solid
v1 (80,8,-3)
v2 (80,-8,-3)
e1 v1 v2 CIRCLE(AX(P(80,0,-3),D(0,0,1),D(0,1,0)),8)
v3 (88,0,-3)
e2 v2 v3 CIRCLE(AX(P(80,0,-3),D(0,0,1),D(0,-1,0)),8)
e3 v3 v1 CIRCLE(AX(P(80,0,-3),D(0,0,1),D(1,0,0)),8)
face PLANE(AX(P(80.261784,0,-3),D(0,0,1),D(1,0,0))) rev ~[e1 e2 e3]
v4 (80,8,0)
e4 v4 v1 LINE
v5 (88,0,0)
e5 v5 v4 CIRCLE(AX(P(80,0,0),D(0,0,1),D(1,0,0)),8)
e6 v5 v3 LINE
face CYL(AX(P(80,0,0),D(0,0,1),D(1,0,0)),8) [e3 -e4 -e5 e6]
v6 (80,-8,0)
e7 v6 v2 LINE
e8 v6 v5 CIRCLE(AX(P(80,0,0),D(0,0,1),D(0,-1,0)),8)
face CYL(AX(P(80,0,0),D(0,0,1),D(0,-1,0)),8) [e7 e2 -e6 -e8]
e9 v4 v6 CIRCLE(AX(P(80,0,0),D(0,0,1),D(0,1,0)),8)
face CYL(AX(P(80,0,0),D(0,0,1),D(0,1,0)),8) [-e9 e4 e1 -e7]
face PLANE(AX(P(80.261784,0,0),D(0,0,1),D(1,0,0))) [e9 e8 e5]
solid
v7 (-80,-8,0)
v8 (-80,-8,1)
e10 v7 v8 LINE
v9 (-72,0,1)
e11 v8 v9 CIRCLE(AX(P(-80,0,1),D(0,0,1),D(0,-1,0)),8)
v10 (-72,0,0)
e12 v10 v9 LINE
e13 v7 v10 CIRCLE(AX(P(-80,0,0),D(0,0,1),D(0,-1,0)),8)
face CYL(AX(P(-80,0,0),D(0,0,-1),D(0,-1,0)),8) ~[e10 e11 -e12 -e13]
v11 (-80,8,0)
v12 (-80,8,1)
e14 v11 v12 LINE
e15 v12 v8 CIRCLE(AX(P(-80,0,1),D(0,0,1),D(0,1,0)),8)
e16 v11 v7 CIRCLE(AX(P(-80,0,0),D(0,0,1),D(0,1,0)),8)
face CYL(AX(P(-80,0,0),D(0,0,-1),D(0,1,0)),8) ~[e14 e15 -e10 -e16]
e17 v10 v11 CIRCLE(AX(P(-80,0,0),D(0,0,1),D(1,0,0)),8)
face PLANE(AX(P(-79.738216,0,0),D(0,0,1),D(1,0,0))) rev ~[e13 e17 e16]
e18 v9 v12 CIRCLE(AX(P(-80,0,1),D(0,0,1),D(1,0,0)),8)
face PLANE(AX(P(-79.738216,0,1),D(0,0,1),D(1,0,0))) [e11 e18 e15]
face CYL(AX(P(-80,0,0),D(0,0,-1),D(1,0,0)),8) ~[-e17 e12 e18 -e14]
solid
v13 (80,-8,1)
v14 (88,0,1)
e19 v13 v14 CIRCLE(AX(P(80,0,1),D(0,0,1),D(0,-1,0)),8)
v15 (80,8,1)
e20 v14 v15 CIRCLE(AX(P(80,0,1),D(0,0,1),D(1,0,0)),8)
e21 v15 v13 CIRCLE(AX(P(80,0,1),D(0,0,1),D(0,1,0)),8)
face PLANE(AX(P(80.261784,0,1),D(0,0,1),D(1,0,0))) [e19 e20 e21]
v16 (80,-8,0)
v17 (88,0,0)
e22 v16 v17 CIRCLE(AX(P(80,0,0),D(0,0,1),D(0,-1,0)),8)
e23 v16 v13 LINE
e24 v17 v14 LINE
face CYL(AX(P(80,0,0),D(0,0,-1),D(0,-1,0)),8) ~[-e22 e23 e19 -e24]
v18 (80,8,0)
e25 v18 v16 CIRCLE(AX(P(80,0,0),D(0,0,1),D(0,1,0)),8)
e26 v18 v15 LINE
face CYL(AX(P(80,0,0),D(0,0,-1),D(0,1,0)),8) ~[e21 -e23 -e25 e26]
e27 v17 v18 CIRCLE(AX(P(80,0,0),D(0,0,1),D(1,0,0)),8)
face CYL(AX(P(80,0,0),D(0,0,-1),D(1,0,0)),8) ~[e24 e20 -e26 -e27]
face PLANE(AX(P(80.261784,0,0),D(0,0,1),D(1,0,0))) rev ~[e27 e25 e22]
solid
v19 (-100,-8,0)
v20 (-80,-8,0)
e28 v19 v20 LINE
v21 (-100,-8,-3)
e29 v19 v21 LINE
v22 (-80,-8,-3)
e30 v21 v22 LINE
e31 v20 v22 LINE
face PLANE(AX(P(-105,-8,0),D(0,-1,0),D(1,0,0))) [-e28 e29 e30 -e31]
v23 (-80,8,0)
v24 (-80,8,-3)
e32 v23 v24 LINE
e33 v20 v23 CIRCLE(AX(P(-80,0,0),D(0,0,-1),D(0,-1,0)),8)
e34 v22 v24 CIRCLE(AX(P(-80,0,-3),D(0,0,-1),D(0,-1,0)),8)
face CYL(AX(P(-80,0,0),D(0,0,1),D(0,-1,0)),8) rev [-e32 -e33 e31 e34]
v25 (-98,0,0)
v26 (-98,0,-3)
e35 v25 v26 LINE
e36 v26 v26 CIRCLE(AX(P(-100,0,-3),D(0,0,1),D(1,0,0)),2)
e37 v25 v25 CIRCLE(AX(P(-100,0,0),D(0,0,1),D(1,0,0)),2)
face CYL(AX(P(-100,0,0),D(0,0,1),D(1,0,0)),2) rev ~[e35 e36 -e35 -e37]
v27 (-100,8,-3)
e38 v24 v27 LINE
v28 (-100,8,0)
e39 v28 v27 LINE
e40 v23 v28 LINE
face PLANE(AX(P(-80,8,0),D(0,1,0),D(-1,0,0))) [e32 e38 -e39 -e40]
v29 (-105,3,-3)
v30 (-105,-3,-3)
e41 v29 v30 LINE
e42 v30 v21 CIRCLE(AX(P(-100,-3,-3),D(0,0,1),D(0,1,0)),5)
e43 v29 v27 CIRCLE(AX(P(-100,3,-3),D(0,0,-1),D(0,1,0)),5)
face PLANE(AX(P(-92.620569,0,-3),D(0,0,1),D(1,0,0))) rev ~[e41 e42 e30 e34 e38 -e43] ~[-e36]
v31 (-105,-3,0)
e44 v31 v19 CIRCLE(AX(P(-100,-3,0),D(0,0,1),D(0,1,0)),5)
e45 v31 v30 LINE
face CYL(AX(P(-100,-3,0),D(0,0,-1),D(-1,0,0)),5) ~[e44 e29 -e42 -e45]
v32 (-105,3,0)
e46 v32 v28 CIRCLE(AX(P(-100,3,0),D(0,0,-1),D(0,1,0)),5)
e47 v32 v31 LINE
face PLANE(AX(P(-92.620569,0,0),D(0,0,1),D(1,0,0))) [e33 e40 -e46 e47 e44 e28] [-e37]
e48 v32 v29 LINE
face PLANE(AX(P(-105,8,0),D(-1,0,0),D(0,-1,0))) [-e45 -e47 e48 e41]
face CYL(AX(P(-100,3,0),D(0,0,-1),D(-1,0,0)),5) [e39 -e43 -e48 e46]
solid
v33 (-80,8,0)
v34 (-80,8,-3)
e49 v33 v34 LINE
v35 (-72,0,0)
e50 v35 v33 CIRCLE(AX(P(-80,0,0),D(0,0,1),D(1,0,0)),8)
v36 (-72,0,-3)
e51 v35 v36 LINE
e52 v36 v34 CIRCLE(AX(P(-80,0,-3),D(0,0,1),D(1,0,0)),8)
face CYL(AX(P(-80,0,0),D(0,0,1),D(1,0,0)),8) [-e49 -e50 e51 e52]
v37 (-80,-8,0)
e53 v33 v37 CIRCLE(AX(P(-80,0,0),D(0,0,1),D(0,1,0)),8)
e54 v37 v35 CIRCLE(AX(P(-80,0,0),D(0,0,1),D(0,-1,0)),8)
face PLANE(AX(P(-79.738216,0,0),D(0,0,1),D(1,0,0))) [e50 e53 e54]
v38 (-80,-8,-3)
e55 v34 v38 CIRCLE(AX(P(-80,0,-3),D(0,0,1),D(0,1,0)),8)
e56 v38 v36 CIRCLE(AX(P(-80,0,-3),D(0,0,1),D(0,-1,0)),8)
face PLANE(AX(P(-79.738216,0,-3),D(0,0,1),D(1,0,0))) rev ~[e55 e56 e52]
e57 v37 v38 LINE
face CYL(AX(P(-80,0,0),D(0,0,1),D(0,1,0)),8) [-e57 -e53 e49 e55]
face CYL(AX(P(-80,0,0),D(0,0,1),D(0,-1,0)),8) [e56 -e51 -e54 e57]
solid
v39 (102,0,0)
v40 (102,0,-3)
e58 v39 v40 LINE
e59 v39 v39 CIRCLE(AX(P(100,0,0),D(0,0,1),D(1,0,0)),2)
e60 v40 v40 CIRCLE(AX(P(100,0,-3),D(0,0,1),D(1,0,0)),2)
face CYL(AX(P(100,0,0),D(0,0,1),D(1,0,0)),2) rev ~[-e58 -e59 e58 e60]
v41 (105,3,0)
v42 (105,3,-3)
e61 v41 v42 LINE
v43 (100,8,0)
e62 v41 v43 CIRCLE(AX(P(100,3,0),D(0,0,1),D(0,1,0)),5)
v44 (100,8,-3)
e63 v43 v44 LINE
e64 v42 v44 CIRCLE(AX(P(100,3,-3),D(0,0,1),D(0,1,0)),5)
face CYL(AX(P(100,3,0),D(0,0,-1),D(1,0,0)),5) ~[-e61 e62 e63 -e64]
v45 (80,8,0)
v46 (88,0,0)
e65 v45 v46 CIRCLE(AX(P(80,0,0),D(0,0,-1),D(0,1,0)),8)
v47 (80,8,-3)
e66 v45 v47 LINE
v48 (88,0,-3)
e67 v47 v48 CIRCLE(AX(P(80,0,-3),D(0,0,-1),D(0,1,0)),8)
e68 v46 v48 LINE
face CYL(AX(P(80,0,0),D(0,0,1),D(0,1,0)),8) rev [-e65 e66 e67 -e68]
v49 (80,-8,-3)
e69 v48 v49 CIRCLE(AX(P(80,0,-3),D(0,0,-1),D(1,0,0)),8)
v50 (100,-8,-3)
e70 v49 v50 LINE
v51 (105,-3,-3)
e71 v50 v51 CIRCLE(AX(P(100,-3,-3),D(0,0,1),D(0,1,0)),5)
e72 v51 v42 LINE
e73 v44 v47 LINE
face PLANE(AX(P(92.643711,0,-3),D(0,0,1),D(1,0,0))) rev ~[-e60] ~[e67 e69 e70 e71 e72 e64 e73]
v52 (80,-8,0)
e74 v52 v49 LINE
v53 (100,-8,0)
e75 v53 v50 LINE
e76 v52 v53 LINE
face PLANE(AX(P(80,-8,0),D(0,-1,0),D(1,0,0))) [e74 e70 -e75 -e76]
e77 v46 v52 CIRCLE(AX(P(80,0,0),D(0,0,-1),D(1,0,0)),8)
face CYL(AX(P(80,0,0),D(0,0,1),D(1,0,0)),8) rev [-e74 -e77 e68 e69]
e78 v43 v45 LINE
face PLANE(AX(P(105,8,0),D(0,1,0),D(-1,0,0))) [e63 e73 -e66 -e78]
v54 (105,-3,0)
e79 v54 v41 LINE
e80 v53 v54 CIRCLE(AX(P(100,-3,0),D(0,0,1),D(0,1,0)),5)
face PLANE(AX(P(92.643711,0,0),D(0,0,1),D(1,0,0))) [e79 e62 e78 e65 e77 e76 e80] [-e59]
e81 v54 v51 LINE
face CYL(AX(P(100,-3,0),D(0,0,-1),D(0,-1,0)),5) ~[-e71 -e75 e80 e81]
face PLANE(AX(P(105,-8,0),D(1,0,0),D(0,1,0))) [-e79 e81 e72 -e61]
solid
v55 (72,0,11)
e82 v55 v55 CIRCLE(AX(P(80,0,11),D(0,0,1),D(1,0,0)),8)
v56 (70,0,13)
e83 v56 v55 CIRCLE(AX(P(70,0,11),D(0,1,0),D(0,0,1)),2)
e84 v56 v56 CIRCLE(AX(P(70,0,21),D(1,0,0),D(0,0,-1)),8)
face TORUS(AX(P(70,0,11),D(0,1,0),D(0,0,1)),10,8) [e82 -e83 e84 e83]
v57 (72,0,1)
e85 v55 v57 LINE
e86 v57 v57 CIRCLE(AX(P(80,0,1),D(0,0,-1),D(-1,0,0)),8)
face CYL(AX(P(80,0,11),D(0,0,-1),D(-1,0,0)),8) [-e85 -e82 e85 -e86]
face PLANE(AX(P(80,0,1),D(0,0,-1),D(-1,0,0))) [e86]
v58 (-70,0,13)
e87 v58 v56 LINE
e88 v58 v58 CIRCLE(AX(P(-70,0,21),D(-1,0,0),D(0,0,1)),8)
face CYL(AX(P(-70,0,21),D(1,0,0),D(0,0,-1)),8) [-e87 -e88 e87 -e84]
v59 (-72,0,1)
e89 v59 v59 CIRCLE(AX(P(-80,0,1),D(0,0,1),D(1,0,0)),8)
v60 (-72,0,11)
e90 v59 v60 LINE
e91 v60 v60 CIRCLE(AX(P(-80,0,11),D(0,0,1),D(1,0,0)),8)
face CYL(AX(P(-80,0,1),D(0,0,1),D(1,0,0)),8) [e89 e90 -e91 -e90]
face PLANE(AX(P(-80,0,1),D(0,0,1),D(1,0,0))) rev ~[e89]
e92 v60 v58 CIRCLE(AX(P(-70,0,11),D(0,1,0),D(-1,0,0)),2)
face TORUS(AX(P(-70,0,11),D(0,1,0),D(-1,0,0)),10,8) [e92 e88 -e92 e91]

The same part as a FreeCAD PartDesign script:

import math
import FreeCAD as App
import Part
import Sketcher
from FreeCAD import Vector
Q = App.Units.Quantity


def edges_at(feature, points):
    """Names of the edges that pass closest to the given points."""
    edges = feature.Shape.Edges
    near = lambda p: min(range(len(edges)), key=lambda i: edges[i].distToShape(Part.Vertex(*p))[0])
    return sorted({f"Edge{near(p) + 1}" for p in points})

doc = App.newDocument("Part")
body = doc.addObject("PartDesign::Body", "Body")

# Sketch on XY plane
sketch1 = body.newObject("Sketcher::SketchObject", "Sketch")
sketch1.AttachmentSupport = (doc.getObject("XY_Plane"), [""])
sketch1.MapMode = "FlatFace"
sketch1.addGeometry(Part.ArcOfCircle(Part.Circle(Vector(-80, 0, 0), Vector(0, 0, 1), 8), math.radians(90), math.radians(270)), False)
sketch1.addGeometry(Part.ArcOfCircle(Part.Circle(Vector(-80, 0, 0), Vector(0, 0, 1), 8), math.radians(-90), math.radians(0)), False)
sketch1.addGeometry(Part.ArcOfCircle(Part.Circle(Vector(-80, 0, 0), Vector(0, 0, 1), 8), math.radians(0), math.radians(90)), False)
sketch1.addConstraint(Sketcher.Constraint("Tangent", 0, 2, 1, 1))
sketch1.addConstraint(Sketcher.Constraint("Tangent", 1, 2, 2, 1))
sketch1.addConstraint(Sketcher.Constraint("Tangent", 2, 2, 0, 1))
sketch1.addConstraint(Sketcher.Constraint("Symmetric", 0, 2, 2, 2, -1))
sketch1.addConstraint(Sketcher.Constraint("PointOnObject", 1, 2, -1))
sketch1.addConstraint(Sketcher.Constraint("Vertical", 2, 3, 0, 2))
sketch1.addConstraint(Sketcher.Constraint("Radius", 0, Q("8 mm")))
sketch1.addConstraint(Sketcher.Constraint("DistanceX", 0, 3, -1, 1, Q("80 mm")))
pad1 = body.newObject("PartDesign::Pad", "Pad")
pad1.Profile = sketch1
pad1.Length = 1
body2 = doc.addObject("PartDesign::Body", "Body001")

# Sketch on XY plane
sketch2 = body2.newObject("Sketcher::SketchObject", "Sketch001")
sketch2.AttachmentSupport = (doc.getObject("XY_Plane001"), [""])
sketch2.MapMode = "FlatFace"
sketch2.addGeometry(Part.ArcOfCircle(Part.Circle(Vector(80, 0, 0), Vector(0, 0, 1), 8), math.radians(90), math.radians(270)), False)
sketch2.addGeometry(Part.ArcOfCircle(Part.Circle(Vector(80, 0, 0), Vector(0, 0, 1), 8), math.radians(-90), math.radians(0)), False)
sketch2.addGeometry(Part.ArcOfCircle(Part.Circle(Vector(80, 0, 0), Vector(0, 0, 1), 8), math.radians(0), math.radians(90)), False)
sketch2.addConstraint(Sketcher.Constraint("Tangent", 0, 2, 1, 1))
sketch2.addConstraint(Sketcher.Constraint("Tangent", 1, 2, 2, 1))
sketch2.addConstraint(Sketcher.Constraint("Tangent", 2, 2, 0, 1))
sketch2.addConstraint(Sketcher.Constraint("Symmetric", 0, 2, 2, 2, -1))
sketch2.addConstraint(Sketcher.Constraint("PointOnObject", 1, 2, -1))
sketch2.addConstraint(Sketcher.Constraint("Vertical", 2, 3, 0, 2))
sketch2.addConstraint(Sketcher.Constraint("Radius", 0, Q("8 mm")))
sketch2.addConstraint(Sketcher.Constraint("DistanceX", -1, 1, 0, 3, Q("80 mm")))
pad2 = body2.newObject("PartDesign::Pad", "Pad001")
pad2.Profile = sketch2
pad2.Length = 1
body3 = doc.addObject("PartDesign::Body", "Body002")

# Sketch on XY plane
sketch3 = body3.newObject("Sketcher::SketchObject", "Sketch002")
sketch3.AttachmentSupport = (doc.getObject("XY_Plane002"), [""])
sketch3.MapMode = "FlatFace"
sketch3.addGeometry(Part.LineSegment(Vector(-105, 8, 0), Vector(-105, -8, 0)), False)
sketch3.addGeometry(Part.LineSegment(Vector(-105, -8, 0), Vector(-80, -8, 0)), False)
sketch3.addGeometry(Part.ArcOfCircle(Part.Circle(Vector(-80, 0, 0), Vector(0, 0, 1), 8), math.radians(90), math.radians(270)), False)
sketch3.addGeometry(Part.LineSegment(Vector(-80, 8, 0), Vector(-105, 8, 0)), False)
sketch3.addGeometry(Part.Circle(Vector(-100, 0, 0), Vector(0, 0, 1), 2), False)
sketch3.addConstraint(Sketcher.Constraint("Coincident", 0, 2, 1, 1))
sketch3.addConstraint(Sketcher.Constraint("Tangent", 1, 2, 2, 2))
sketch3.addConstraint(Sketcher.Constraint("Tangent", 2, 1, 3, 1))
sketch3.addConstraint(Sketcher.Constraint("Coincident", 3, 2, 0, 1))
sketch3.addConstraint(Sketcher.Constraint("Vertical", 0))
sketch3.addConstraint(Sketcher.Constraint("Horizontal", 1))
sketch3.addConstraint(Sketcher.Constraint("Horizontal", 3))
sketch3.addConstraint(Sketcher.Constraint("PointOnObject", 2, 3, -1))
sketch3.addConstraint(Sketcher.Constraint("PointOnObject", 4, 3, -1))
sketch3.addConstraint(Sketcher.Constraint("Diameter", 4, Q("4 mm")))
sketch3.addConstraint(Sketcher.Constraint("Radius", 2, Q("8 mm")))
sketch3.addConstraint(Sketcher.Constraint("DistanceX", 1, 1, 1, 2, Q("25 mm")))
sketch3.addConstraint(Sketcher.Constraint("DistanceX", 2, 3, -1, 1, Q("80 mm")))
sketch3.addConstraint(Sketcher.Constraint("DistanceX", 4, 3, -1, 1, Q("100 mm")))
pad3 = body3.newObject("PartDesign::Pad", "Pad002")
pad3.Profile = sketch3
pad3.Length = 3
pad3.Reversed = True
doc.recompute()

fillet = body3.newObject("PartDesign::Fillet", "Fillet")
fillet.Base = (pad3, edges_at(pad3, [(-105, -8, -1.5), (-105, 8, -1.5)]))
fillet.Radius = 5
body4 = doc.addObject("PartDesign::Body", "Body003")

# Sketch on XY plane
sketch4 = body4.newObject("Sketcher::SketchObject", "Sketch003")
sketch4.AttachmentSupport = (doc.getObject("XY_Plane003"), [""])
sketch4.MapMode = "FlatFace"
sketch4.addGeometry(Part.LineSegment(Vector(80, -8, 0), Vector(105, -8, 0)), False)
sketch4.addGeometry(Part.LineSegment(Vector(105, -8, 0), Vector(105, 8, 0)), False)
sketch4.addGeometry(Part.LineSegment(Vector(105, 8, 0), Vector(80, 8, 0)), False)
sketch4.addGeometry(Part.ArcOfCircle(Part.Circle(Vector(80, 0, 0), Vector(0, 0, 1), 8), math.radians(0), math.radians(90)), False)
sketch4.addGeometry(Part.ArcOfCircle(Part.Circle(Vector(80, 0, 0), Vector(0, 0, 1), 8), math.radians(-90), math.radians(0)), False)
sketch4.addGeometry(Part.Circle(Vector(100, 0, 0), Vector(0, 0, 1), 2), False)
sketch4.addConstraint(Sketcher.Constraint("Coincident", 0, 2, 1, 1))
sketch4.addConstraint(Sketcher.Constraint("Coincident", 1, 2, 2, 1))
sketch4.addConstraint(Sketcher.Constraint("Tangent", 2, 2, 3, 2))
sketch4.addConstraint(Sketcher.Constraint("Tangent", 3, 1, 4, 2))
sketch4.addConstraint(Sketcher.Constraint("Tangent", 4, 1, 0, 1))
sketch4.addConstraint(Sketcher.Constraint("Horizontal", 0))
sketch4.addConstraint(Sketcher.Constraint("Vertical", 1))
sketch4.addConstraint(Sketcher.Constraint("Horizontal", 2))
sketch4.addConstraint(Sketcher.Constraint("Equal", 3, 4))
sketch4.addConstraint(Sketcher.Constraint("PointOnObject", 3, 3, -1))
sketch4.addConstraint(Sketcher.Constraint("PointOnObject", 5, 3, -1))
sketch4.addConstraint(Sketcher.Constraint("PointOnObject", 3, 1, -1))
sketch4.addConstraint(Sketcher.Constraint("Diameter", 5, Q("4 mm")))
sketch4.addConstraint(Sketcher.Constraint("Radius", 3, Q("8 mm")))
sketch4.addConstraint(Sketcher.Constraint("DistanceX", 0, 1, 0, 2, Q("25 mm")))
sketch4.addConstraint(Sketcher.Constraint("DistanceX", -1, 1, 3, 3, Q("80 mm")))
sketch4.addConstraint(Sketcher.Constraint("DistanceX", -1, 1, 5, 3, Q("100 mm")))
pad4 = body4.newObject("PartDesign::Pad", "Pad003")
pad4.Profile = sketch4
pad4.Length = 3
pad4.Reversed = True
doc.recompute()

fillet2 = body4.newObject("PartDesign::Fillet", "Fillet001")
fillet2.Base = (pad4, edges_at(pad4, [(105, -8, -1.5), (105, 8, -1.5)]))
fillet2.Radius = 5
body5 = doc.addObject("PartDesign::Body", "Body004")

# Sketch on XY plane
sketch5 = body5.newObject("Sketcher::SketchObject", "Sketch004")
sketch5.AttachmentSupport = (doc.getObject("XY_Plane004"), [""])
sketch5.MapMode = "FlatFace"
sketch5.addGeometry(Part.ArcOfCircle(Part.Circle(Vector(-80, 0, 0), Vector(0, 0, 1), 8), math.radians(90), math.radians(270)), False)
sketch5.addGeometry(Part.ArcOfCircle(Part.Circle(Vector(-80, 0, 0), Vector(0, 0, 1), 8), math.radians(-90), math.radians(0)), False)
sketch5.addGeometry(Part.ArcOfCircle(Part.Circle(Vector(-80, 0, 0), Vector(0, 0, 1), 8), math.radians(0), math.radians(90)), False)
sketch5.addConstraint(Sketcher.Constraint("Tangent", 0, 2, 1, 1))
sketch5.addConstraint(Sketcher.Constraint("Tangent", 1, 2, 2, 1))
sketch5.addConstraint(Sketcher.Constraint("Tangent", 2, 2, 0, 1))
sketch5.addConstraint(Sketcher.Constraint("Symmetric", 0, 2, 2, 2, -1))
sketch5.addConstraint(Sketcher.Constraint("PointOnObject", 1, 2, -1))
sketch5.addConstraint(Sketcher.Constraint("Vertical", 2, 3, 0, 2))
sketch5.addConstraint(Sketcher.Constraint("Radius", 0, Q("8 mm")))
sketch5.addConstraint(Sketcher.Constraint("DistanceX", 0, 3, -1, 1, Q("80 mm")))
pad5 = body5.newObject("PartDesign::Pad", "Pad004")
pad5.Profile = sketch5
pad5.Length = 3
pad5.Reversed = True
body6 = doc.addObject("PartDesign::Body", "Body005")

# Sketch on XY plane
sketch6 = body6.newObject("Sketcher::SketchObject", "Sketch005")
sketch6.AttachmentSupport = (doc.getObject("XY_Plane005"), [""])
sketch6.MapMode = "FlatFace"
sketch6.addGeometry(Part.ArcOfCircle(Part.Circle(Vector(80, 0, 0), Vector(0, 0, 1), 8), math.radians(90), math.radians(270)), False)
sketch6.addGeometry(Part.ArcOfCircle(Part.Circle(Vector(80, 0, 0), Vector(0, 0, 1), 8), math.radians(-90), math.radians(0)), False)
sketch6.addGeometry(Part.ArcOfCircle(Part.Circle(Vector(80, 0, 0), Vector(0, 0, 1), 8), math.radians(0), math.radians(90)), False)
sketch6.addConstraint(Sketcher.Constraint("Tangent", 0, 2, 1, 1))
sketch6.addConstraint(Sketcher.Constraint("Tangent", 1, 2, 2, 1))
sketch6.addConstraint(Sketcher.Constraint("Tangent", 2, 2, 0, 1))
sketch6.addConstraint(Sketcher.Constraint("Symmetric", 0, 2, 2, 2, -1))
sketch6.addConstraint(Sketcher.Constraint("PointOnObject", 1, 2, -1))
sketch6.addConstraint(Sketcher.Constraint("Vertical", 2, 3, 0, 2))
sketch6.addConstraint(Sketcher.Constraint("Radius", 0, Q("8 mm")))
sketch6.addConstraint(Sketcher.Constraint("DistanceX", -1, 1, 0, 3, Q("80 mm")))
pad6 = body6.newObject("PartDesign::Pad", "Pad005")
pad6.Profile = sketch6
pad6.Length = 3
pad6.Reversed = True
body7 = doc.addObject("PartDesign::Body", "Body006")

# Sketch on XY plane
sketch7 = body7.newObject("Sketcher::SketchObject", "Sketch006")
sketch7.AttachmentSupport = (doc.getObject("XY_Plane006"), [""])
sketch7.MapMode = "FlatFace"
sketch7.AttachmentOffset = App.Placement(Vector(0, 0, 1), App.Rotation())
sketch7.addGeometry(Part.Circle(Vector(-80, 0, 0), Vector(0, 0, 1), 8), False)
sketch7.addConstraint(Sketcher.Constraint("PointOnObject", 0, 3, -1))
sketch7.addConstraint(Sketcher.Constraint("Diameter", 0, Q("16 mm")))
sketch7.addConstraint(Sketcher.Constraint("DistanceX", 0, 3, -1, 1, Q("80 mm")))

# Sketch on XZ plane
sketch8 = body7.newObject("Sketcher::SketchObject", "Sketch007")
sketch8.AttachmentSupport = (doc.getObject("XZ_Plane006"), [""])
sketch8.MapMode = "FlatFace"
sketch8.addGeometry(Part.LineSegment(Vector(-80, 1, 0), Vector(-80, 11, 0)), False)
sketch8.addGeometry(Part.ArcOfCircle(Part.Circle(Vector(-70, 11, 0), Vector(0, 0, 1), 10), math.radians(90), math.radians(180)), False)
sketch8.addGeometry(Part.LineSegment(Vector(-70, 21, 0), Vector(70, 21, 0)), False)
sketch8.addGeometry(Part.ArcOfCircle(Part.Circle(Vector(70, 11, 0), Vector(0, 0, 1), 10), math.radians(0), math.radians(90)), False)
sketch8.addGeometry(Part.LineSegment(Vector(80, 11, 0), Vector(80, 1, 0)), False)
sketch8.addConstraint(Sketcher.Constraint("Tangent", 0, 2, 1, 2))
sketch8.addConstraint(Sketcher.Constraint("Tangent", 1, 1, 2, 1))
sketch8.addConstraint(Sketcher.Constraint("Tangent", 2, 2, 3, 2))
sketch8.addConstraint(Sketcher.Constraint("Tangent", 3, 1, 4, 1))
sketch8.addConstraint(Sketcher.Constraint("Vertical", 0))
sketch8.addConstraint(Sketcher.Constraint("Horizontal", 2))
sketch8.addConstraint(Sketcher.Constraint("Vertical", 4))
sketch8.addConstraint(Sketcher.Constraint("Equal", 1, 3))
sketch8.addConstraint(Sketcher.Constraint("Symmetric", 0, 1, 4, 2, -2))
sketch8.addConstraint(Sketcher.Constraint("Radius", 1, Q("10 mm")))
sketch8.addConstraint(Sketcher.Constraint("DistanceX", 2, 1, 2, 2, Q("140 mm")))
sketch8.addConstraint(Sketcher.Constraint("DistanceY", 0, 1, 0, 2, Q("10 mm")))
sketch8.addConstraint(Sketcher.Constraint("DistanceY", -1, 1, 1, 3, Q("11 mm")))
doc.recompute()

additivepipe = body7.newObject("PartDesign::AdditivePipe", "AdditivePipe")
additivepipe.Profile = sketch7
additivepipe.Spine = (sketch8, ["Edge1", "Edge2", "Edge3", "Edge4", "Edge5"])

doc.recompute()
